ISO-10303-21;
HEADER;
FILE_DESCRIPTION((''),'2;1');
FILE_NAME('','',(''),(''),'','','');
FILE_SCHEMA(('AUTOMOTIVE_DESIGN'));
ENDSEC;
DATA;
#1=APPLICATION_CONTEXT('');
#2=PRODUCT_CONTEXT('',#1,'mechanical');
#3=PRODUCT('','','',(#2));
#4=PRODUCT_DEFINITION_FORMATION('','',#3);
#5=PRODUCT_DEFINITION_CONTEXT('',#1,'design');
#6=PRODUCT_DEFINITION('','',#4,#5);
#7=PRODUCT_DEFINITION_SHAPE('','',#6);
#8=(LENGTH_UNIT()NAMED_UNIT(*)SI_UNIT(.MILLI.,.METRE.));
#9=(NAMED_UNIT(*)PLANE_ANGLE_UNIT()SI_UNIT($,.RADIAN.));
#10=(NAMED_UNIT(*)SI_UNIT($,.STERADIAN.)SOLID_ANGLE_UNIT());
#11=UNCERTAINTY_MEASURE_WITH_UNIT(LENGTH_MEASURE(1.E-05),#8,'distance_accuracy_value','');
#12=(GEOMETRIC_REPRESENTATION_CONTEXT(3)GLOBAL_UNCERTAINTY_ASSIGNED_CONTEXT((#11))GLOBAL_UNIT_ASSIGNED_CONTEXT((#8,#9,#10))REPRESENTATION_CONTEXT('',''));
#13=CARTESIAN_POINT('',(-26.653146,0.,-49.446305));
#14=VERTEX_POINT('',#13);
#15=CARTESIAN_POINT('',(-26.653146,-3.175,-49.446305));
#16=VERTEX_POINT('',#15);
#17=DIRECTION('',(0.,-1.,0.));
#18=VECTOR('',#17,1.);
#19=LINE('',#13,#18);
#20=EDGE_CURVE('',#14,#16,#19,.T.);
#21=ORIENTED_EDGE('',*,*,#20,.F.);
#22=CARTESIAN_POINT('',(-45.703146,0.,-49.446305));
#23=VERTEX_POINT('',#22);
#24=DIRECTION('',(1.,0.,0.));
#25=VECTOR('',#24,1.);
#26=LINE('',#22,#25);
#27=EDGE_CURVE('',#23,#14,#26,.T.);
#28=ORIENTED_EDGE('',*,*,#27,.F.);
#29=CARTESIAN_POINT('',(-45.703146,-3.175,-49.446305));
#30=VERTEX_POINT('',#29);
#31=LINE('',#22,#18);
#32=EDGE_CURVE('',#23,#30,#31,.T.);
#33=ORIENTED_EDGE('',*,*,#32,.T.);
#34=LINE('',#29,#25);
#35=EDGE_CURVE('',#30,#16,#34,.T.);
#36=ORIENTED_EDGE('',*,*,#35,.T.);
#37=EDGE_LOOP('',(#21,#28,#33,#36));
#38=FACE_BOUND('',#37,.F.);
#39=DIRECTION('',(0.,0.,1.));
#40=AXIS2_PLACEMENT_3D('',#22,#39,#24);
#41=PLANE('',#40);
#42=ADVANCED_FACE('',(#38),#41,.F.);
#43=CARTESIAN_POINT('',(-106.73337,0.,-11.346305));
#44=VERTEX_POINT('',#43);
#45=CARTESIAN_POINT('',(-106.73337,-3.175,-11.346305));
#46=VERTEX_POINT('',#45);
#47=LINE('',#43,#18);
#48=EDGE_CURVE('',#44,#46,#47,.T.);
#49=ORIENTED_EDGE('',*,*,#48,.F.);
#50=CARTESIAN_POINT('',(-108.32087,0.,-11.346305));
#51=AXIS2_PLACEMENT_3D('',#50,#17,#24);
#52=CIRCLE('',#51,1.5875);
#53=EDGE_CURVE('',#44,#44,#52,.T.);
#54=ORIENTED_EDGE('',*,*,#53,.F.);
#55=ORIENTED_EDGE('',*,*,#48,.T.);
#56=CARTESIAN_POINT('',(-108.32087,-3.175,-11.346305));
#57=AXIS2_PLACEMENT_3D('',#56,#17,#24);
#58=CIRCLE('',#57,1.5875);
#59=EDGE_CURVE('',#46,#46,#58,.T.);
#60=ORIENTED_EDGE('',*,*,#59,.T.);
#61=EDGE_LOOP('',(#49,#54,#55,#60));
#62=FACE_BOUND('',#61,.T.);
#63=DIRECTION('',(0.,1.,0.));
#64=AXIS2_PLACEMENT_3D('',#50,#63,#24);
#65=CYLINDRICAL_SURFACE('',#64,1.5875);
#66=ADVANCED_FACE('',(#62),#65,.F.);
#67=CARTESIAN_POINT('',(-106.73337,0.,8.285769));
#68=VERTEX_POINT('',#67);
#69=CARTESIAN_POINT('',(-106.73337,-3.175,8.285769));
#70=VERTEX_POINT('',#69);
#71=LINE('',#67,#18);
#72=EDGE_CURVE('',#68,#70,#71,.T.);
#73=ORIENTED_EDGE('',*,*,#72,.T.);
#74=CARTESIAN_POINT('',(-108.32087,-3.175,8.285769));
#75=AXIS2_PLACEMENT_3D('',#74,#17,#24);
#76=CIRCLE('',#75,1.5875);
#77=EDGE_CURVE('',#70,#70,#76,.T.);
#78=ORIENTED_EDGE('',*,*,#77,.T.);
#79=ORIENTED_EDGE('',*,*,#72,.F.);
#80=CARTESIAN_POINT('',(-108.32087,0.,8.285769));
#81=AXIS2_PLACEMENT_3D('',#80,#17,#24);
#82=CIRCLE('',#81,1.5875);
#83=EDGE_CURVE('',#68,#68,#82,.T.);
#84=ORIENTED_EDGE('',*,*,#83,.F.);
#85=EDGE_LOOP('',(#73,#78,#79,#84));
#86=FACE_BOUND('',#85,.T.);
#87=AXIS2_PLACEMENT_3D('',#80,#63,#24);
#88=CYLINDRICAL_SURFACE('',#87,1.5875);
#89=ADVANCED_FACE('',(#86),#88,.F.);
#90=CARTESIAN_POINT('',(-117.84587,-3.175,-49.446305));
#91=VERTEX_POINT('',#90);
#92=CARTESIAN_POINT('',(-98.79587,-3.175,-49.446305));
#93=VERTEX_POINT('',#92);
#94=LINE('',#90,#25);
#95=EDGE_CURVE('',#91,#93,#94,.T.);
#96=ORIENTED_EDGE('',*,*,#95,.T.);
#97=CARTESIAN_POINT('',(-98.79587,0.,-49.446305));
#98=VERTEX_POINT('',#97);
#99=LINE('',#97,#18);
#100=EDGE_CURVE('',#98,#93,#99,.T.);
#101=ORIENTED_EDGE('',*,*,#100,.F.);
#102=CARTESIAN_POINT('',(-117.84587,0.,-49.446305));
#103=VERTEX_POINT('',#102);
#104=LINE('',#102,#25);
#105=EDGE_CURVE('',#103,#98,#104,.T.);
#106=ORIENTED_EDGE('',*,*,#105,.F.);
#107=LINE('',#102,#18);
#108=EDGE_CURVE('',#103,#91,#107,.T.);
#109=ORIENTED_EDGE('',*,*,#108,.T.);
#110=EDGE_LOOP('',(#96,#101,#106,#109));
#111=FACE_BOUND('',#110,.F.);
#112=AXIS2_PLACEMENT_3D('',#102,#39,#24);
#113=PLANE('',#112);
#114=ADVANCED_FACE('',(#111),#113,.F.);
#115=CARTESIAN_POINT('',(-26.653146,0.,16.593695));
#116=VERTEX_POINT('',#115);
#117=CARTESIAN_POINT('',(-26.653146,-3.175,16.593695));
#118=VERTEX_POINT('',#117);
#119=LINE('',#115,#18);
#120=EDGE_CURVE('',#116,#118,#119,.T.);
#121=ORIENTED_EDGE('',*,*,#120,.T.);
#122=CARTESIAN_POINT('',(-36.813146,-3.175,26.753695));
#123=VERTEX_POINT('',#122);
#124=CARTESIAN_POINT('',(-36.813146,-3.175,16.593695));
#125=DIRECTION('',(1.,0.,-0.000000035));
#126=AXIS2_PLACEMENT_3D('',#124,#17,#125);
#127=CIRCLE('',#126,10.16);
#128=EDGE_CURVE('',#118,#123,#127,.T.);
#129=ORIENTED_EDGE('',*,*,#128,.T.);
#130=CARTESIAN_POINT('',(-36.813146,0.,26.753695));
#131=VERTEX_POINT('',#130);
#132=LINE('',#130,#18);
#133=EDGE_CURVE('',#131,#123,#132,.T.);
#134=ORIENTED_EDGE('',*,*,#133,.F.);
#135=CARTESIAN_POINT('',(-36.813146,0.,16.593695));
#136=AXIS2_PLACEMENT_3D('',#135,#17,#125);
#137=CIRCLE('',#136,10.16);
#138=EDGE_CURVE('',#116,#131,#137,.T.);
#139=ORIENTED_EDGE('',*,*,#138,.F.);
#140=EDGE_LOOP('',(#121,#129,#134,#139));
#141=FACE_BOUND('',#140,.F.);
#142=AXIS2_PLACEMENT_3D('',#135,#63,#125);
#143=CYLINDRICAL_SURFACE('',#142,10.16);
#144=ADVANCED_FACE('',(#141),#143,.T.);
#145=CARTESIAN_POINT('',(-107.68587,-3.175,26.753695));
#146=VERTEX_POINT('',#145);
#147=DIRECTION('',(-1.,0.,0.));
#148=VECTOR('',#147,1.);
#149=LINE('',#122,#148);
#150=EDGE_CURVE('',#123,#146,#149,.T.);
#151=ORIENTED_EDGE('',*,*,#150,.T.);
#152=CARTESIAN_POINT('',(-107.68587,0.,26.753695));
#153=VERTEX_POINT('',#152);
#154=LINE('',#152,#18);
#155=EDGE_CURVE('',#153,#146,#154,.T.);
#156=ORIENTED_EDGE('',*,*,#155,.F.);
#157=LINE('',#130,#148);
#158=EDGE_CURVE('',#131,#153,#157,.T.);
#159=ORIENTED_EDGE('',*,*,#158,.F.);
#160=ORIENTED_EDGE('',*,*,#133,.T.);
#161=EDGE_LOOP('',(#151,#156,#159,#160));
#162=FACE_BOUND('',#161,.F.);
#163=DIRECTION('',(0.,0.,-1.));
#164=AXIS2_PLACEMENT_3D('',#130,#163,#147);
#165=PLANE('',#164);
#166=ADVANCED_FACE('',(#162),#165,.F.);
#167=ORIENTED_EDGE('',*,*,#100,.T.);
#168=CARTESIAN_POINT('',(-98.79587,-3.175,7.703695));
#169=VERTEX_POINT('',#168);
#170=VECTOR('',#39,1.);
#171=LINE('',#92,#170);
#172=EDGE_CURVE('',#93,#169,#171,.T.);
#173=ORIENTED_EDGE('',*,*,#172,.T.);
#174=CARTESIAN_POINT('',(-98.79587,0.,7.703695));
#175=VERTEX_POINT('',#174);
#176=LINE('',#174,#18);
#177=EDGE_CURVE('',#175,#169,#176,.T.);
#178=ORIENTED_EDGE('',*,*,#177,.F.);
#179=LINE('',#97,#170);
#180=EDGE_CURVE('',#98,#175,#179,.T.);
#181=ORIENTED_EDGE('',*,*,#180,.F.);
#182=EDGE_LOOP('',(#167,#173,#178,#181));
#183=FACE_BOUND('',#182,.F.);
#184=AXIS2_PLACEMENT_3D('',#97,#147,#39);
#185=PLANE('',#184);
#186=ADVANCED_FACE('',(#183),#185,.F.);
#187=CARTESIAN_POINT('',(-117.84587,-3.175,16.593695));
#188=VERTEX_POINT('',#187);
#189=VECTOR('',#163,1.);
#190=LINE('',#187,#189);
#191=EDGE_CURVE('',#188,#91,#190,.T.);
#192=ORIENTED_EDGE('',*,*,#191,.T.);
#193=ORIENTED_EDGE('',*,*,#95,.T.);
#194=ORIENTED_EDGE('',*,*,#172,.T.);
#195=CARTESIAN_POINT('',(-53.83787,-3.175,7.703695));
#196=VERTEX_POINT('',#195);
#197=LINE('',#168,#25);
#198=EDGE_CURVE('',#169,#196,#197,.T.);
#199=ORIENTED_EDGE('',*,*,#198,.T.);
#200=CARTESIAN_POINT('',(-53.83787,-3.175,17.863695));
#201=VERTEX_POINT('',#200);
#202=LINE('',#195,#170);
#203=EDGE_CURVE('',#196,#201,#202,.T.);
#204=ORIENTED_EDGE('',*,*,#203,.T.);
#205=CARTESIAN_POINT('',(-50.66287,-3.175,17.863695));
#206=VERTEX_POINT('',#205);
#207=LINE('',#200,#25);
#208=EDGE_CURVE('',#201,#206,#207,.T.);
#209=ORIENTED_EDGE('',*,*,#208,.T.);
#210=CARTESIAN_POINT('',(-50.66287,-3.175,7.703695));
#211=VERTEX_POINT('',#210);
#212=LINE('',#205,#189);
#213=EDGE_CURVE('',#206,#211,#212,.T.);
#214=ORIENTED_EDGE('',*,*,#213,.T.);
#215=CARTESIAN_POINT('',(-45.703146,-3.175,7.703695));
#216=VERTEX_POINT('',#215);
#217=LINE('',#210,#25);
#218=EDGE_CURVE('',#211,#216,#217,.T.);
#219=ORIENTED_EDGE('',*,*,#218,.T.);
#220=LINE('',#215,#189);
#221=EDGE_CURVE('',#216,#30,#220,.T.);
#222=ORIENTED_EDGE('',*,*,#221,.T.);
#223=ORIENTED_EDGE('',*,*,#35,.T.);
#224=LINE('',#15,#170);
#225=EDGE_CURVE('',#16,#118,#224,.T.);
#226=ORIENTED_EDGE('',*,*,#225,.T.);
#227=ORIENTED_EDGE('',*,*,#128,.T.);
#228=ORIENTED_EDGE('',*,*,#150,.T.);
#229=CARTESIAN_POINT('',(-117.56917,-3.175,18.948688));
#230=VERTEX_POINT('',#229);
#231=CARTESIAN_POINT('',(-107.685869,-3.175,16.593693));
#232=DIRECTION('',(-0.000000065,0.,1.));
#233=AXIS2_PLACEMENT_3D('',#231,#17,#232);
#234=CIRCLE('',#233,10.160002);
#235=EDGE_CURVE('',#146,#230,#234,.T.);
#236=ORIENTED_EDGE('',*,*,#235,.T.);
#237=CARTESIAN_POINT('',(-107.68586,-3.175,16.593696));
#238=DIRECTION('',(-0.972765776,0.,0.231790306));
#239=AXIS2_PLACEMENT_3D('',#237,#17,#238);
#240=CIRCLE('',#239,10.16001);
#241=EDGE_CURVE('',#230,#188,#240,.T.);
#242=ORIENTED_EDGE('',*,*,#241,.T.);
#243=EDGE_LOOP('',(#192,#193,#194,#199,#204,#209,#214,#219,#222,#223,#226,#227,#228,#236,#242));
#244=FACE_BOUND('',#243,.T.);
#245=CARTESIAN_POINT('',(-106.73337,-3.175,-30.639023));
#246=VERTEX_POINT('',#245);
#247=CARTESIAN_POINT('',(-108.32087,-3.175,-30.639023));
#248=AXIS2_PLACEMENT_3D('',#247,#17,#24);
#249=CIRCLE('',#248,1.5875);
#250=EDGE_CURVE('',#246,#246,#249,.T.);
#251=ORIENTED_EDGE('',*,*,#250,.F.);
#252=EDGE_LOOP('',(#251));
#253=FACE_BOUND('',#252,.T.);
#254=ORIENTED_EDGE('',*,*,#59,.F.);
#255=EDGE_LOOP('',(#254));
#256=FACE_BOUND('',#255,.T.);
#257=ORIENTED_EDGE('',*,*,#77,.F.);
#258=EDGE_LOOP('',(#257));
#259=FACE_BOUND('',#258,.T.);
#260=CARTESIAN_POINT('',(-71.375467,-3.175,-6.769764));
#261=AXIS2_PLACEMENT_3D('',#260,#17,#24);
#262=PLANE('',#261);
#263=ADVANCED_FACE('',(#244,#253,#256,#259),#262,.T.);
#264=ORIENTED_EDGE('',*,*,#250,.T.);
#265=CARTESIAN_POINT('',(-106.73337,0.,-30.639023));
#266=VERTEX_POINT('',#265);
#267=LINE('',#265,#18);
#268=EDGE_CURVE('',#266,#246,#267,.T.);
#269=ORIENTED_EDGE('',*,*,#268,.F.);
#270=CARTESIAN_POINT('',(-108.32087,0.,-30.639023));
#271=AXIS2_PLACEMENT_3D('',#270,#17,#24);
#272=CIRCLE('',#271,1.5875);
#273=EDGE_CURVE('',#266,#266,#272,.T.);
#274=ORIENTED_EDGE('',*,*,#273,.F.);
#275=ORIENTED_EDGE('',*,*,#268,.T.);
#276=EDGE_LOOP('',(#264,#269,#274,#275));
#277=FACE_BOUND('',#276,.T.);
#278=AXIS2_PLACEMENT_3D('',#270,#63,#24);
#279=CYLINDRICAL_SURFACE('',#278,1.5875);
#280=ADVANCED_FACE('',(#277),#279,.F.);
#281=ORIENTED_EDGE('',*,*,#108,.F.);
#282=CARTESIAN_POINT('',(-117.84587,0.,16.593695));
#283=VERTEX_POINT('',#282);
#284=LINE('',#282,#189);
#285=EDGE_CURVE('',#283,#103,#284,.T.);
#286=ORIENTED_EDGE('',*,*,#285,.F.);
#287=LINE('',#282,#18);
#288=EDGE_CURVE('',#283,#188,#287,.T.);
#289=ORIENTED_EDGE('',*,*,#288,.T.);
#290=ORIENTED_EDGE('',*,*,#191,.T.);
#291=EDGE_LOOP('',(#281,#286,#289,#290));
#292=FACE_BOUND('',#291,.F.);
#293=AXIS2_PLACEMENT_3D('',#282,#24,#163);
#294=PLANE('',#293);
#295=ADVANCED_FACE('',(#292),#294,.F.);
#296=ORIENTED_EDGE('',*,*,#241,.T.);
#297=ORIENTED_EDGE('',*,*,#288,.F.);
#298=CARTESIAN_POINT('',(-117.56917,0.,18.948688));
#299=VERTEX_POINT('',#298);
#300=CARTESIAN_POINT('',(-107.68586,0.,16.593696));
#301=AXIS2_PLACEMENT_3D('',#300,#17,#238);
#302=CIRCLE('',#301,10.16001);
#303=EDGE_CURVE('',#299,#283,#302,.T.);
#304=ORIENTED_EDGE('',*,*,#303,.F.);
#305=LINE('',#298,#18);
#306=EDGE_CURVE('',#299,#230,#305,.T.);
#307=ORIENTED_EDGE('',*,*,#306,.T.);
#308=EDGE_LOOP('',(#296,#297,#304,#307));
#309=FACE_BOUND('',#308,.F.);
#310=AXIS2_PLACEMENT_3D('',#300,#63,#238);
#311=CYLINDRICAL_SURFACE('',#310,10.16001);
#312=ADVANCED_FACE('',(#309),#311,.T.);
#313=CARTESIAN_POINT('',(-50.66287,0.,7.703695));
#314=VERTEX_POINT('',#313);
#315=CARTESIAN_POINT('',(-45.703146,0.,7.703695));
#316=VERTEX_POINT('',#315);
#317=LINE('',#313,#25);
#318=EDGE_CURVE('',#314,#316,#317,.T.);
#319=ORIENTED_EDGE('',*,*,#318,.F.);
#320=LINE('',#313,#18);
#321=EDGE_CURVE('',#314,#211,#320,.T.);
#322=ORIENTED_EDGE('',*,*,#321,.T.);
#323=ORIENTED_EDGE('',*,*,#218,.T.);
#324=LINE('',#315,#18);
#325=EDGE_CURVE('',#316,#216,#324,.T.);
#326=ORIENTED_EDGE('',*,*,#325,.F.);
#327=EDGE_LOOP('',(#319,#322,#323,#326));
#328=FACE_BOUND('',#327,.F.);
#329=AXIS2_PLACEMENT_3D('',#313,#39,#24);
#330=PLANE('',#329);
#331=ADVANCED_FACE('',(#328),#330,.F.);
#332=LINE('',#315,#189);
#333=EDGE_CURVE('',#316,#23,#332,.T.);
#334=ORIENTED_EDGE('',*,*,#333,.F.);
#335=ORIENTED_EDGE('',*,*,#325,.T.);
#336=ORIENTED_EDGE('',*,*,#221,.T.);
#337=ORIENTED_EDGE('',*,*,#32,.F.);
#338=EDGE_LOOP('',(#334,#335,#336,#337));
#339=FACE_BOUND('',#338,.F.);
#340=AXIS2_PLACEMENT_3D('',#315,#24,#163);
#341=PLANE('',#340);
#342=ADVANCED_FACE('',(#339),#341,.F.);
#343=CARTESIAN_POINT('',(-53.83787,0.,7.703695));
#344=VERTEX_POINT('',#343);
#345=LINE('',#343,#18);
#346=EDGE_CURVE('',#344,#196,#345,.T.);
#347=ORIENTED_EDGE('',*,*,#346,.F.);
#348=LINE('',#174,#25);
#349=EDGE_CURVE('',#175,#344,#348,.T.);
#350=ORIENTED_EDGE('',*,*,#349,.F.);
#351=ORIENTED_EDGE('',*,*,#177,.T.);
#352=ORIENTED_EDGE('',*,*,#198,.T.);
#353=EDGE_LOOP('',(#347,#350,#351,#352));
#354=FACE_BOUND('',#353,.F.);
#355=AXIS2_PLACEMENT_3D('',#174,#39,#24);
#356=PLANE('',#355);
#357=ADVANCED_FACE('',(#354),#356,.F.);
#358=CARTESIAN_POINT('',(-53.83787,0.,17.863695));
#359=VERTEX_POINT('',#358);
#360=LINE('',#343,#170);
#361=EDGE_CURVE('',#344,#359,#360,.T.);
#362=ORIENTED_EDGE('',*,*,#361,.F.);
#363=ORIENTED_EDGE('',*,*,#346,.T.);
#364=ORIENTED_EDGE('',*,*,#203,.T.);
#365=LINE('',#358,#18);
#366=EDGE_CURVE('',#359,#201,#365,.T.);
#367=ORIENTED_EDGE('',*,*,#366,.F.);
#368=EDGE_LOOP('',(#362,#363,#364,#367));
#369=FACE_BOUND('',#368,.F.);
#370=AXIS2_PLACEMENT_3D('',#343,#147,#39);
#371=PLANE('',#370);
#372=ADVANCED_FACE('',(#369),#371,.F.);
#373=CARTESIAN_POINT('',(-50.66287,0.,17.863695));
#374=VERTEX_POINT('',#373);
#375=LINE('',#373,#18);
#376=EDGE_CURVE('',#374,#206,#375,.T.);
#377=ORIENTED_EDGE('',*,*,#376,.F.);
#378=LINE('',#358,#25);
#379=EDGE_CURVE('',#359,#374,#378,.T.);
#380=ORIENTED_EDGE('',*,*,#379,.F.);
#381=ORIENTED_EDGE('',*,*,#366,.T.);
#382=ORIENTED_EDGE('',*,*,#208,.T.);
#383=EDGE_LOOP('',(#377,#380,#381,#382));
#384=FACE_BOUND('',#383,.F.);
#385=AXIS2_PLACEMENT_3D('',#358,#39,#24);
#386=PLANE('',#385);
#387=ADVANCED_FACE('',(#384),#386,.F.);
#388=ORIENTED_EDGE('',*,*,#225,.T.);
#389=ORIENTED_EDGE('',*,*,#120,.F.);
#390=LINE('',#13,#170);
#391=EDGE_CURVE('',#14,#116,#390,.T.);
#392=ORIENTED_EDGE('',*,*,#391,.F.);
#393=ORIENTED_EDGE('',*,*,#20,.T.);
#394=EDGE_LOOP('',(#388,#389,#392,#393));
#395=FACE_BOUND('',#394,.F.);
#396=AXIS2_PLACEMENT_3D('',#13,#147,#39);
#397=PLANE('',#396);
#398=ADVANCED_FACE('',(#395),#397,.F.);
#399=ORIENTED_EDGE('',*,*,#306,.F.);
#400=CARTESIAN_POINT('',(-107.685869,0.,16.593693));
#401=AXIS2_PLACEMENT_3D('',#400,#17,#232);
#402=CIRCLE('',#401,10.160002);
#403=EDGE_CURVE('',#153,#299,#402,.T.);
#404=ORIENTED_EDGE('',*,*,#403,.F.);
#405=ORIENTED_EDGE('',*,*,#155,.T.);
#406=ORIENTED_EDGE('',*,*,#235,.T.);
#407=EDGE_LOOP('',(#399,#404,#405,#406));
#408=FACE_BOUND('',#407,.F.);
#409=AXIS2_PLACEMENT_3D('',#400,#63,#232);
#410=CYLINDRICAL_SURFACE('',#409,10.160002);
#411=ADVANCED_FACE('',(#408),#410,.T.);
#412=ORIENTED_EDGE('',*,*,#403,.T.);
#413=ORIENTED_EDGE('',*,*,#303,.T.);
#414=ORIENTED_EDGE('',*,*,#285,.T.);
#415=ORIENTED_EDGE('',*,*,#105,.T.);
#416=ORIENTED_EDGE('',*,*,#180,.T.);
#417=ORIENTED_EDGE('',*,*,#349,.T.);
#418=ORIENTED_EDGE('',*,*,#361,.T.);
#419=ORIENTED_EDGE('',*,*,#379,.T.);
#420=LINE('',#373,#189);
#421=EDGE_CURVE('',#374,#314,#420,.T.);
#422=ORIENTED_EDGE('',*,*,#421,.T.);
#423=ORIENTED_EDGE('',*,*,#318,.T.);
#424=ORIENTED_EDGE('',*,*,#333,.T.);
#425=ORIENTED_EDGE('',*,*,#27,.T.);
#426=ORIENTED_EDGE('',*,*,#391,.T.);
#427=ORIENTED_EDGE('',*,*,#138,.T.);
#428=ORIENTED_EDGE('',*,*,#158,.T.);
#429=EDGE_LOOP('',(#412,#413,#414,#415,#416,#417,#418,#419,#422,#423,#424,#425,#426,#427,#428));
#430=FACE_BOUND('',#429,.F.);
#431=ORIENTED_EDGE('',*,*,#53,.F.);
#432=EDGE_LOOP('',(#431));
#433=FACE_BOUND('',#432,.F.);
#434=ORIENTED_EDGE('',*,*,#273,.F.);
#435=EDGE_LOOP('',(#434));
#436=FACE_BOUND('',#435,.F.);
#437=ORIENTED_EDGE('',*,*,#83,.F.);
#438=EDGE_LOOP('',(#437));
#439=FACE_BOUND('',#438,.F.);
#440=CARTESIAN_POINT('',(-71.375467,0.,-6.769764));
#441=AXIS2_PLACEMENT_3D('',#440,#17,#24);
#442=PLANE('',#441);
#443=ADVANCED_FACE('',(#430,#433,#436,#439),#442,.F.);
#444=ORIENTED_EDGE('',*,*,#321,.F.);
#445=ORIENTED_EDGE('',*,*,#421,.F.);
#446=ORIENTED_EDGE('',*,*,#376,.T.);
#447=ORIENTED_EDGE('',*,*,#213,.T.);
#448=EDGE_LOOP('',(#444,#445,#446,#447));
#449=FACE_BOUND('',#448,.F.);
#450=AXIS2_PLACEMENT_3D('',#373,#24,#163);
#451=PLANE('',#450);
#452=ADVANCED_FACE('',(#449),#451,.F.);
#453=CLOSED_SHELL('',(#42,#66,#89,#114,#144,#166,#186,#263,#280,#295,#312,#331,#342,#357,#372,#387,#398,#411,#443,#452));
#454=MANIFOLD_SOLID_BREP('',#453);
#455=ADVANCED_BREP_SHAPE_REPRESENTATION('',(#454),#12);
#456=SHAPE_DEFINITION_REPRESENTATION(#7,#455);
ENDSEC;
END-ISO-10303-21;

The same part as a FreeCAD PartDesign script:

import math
import FreeCAD as App
import Part
import Sketcher
Q = App.Units.Quantity

doc = App.newDocument("Part")
body = doc.addObject("PartDesign::Body", "Body")

sketch1 = body.newObject("Sketcher::SketchObject", "Sketch")
sketch1.AttachmentSupport = (doc.getObject("XZ_Plane"), [""])
sketch1.MapMode = "FlatFace"
sketch1.addGeometry([
    Part.LineSegment(App.Vector(-45.703146, 7.703695, 0), App.Vector(-45.703146, -49.446305, 0)),
    Part.LineSegment(App.Vector(-45.703146, -49.446305, 0), App.Vector(-26.653146, -49.446305, 0)),
    Part.LineSegment(App.Vector(-26.653146, -49.446305, 0), App.Vector(-26.653146, 16.593695, 0)),
    Part.ArcOfCircle(Part.Circle(App.Vector(-36.813146, 16.593695, 0), App.Vector(0, 0, 1), 10.16), math.radians(-0.000002), math.radians(90.000002)),
    Part.LineSegment(App.Vector(-36.813146, 26.753695, 0), App.Vector(-107.68587, 26.753695, 0)),
    Part.ArcOfCircle(Part.Circle(App.Vector(-107.685869, 16.593693, 0), App.Vector(0, 0, 1), 10.160002), math.radians(90.000004), math.radians(166.597475)),
    Part.ArcOfCircle(Part.Circle(App.Vector(-107.68586, 16.593696, 0), App.Vector(0, 0, 1), 10.16001), math.radians(166.597503), math.radians(180.000006)),
    Part.LineSegment(App.Vector(-117.84587, 16.593695, 0), App.Vector(-117.84587, -49.446305, 0)),
    Part.LineSegment(App.Vector(-117.84587, -49.446305, 0), App.Vector(-98.79587, -49.446305, 0)),
    Part.LineSegment(App.Vector(-98.79587, -49.446305, 0), App.Vector(-98.79587, 7.703695, 0)),
    Part.LineSegment(App.Vector(-98.79587, 7.703695, 0), App.Vector(-53.83787, 7.703695, 0)),
    Part.LineSegment(App.Vector(-53.83787, 7.703695, 0), App.Vector(-53.83787, 17.863695, 0)),
    Part.LineSegment(App.Vector(-53.83787, 17.863695, 0), App.Vector(-50.66287, 17.863695, 0)),
    Part.LineSegment(App.Vector(-50.66287, 17.863695, 0), App.Vector(-50.66287, 7.703695, 0)),
    Part.LineSegment(App.Vector(-50.66287, 7.703695, 0), App.Vector(-45.703146, 7.703695, 0)),
    Part.Circle(App.Vector(-108.32087, -30.639023, 0), App.Vector(0, 0, 1), 1.5875),
    Part.Circle(App.Vector(-108.32087, -11.346305, 0), App.Vector(0, 0, 1), 1.5875),
    Part.Circle(App.Vector(-108.32087, 8.285769, 0), App.Vector(0, 0, 1), 1.5875),
], False)
sketch1.addConstraint([
    Sketcher.Constraint("Coincident", 0, 2, 1, 1),
    Sketcher.Constraint("Coincident", 1, 2, 2, 1),
    Sketcher.Constraint("Tangent", 2, 2, 3, 1),
    Sketcher.Constraint("Tangent", 3, 2, 4, 1),
    Sketcher.Constraint("Tangent", 4, 2, 5, 1),
    Sketcher.Constraint("Tangent", 5, 2, 6, 1),
    Sketcher.Constraint("Tangent", 6, 2, 7, 1),
    Sketcher.Constraint("Coincident", 7, 2, 8, 1),
    Sketcher.Constraint("Coincident", 8, 2, 9, 1),
    Sketcher.Constraint("Coincident", 9, 2, 10, 1),
    Sketcher.Constraint("Coincident", 10, 2, 11, 1),
    Sketcher.Constraint("Coincident", 11, 2, 12, 1),
    Sketcher.Constraint("Coincident", 12, 2, 13, 1),
    Sketcher.Constraint("Coincident", 13, 2, 14, 1),
    Sketcher.Constraint("Coincident", 14, 2, 0, 1),
    Sketcher.Constraint("Vertical", 0),
    Sketcher.Constraint("Horizontal", 1),
    Sketcher.Constraint("Vertical", 2),
    Sketcher.Constraint("Horizontal", 4),
    Sketcher.Constraint("Vertical", 7),
    Sketcher.Constraint("Horizontal", 8),
    Sketcher.Constraint("Vertical", 9),
    Sketcher.Constraint("Horizontal", 10),
    Sketcher.Constraint("Vertical", 11),
    Sketcher.Constraint("Horizontal", 12),
    Sketcher.Constraint("Vertical", 13),
    Sketcher.Constraint("Horizontal", 14),
    Sketcher.Constraint("Equal", 3, 5),
    Sketcher.Constraint("Equal", 15, 16),
    Sketcher.Constraint("Equal", 16, 17),
    Sketcher.Constraint("Horizontal", 3, 3, 6, 3),
    Sketcher.Constraint("Horizontal", 1, 2, 7, 2),
    Sketcher.Constraint("Horizontal", 10, 2, 13, 2),
    Sketcher.Constraint("Vertical", 15, 3, 16, 3),
    Sketcher.Constraint("Vertical", 16, 3, 17, 3),
    Sketcher.Constraint("Equal", 1, 8),
    Sketcher.Constraint("Radius", 3, Q("0.4 in")),
    Sketcher.Constraint("Diameter", 15, Q("0.125 in")),
    Sketcher.Constraint("DistanceY", 2, 1, 2, 2, Q("2.6 in")),
    Sketcher.Constraint("DistanceY", 11, 1, 11, 2, Q("0.4 in")),
    Sketcher.Constraint("DistanceX", 1, 1, 1, 2, Q("0.75 in")),
    Sketcher.Constraint("DistanceX", 10, 1, 10, 2, Q("1.77 in")),
    Sketcher.Constraint("DistanceY", 0, 2, 0, 1, Q("2.25 in")),
    Sketcher.Constraint("DistanceY", 16, 3, 5, 3, Q("1.0999999 in")),
    Sketcher.Constraint("DistanceX", 12, 1, 12, 2, Q("0.125 in")),
    Sketcher.Constraint("DistanceX", 15, 3, 5, 3, Q("0.025 in")),
    Sketcher.Constraint("DistanceY", 17, 3, 5, 2, Q("0.4198 in")),
    Sketcher.Constraint("DistanceX", 5, 2, 5, 3, 9.883301),
    Sketcher.Constraint("DistanceX", 4, 2, 4, 1, 70.872724),
    Sketcher.Constraint("DistanceX", 5, 3, -1, 1, 107.685869),
    Sketcher.Constraint("DistanceY", -1, 1, 17, 3, 8.285769),
    Sketcher.Constraint("DistanceY", 15, 3, 6, 3, 47.232719),
])
pad1 = body.newObject("PartDesign::Pad", "Pad")
pad1.Profile = sketch1
pad1.Length = Q("0.125 in")

doc.recompute()
